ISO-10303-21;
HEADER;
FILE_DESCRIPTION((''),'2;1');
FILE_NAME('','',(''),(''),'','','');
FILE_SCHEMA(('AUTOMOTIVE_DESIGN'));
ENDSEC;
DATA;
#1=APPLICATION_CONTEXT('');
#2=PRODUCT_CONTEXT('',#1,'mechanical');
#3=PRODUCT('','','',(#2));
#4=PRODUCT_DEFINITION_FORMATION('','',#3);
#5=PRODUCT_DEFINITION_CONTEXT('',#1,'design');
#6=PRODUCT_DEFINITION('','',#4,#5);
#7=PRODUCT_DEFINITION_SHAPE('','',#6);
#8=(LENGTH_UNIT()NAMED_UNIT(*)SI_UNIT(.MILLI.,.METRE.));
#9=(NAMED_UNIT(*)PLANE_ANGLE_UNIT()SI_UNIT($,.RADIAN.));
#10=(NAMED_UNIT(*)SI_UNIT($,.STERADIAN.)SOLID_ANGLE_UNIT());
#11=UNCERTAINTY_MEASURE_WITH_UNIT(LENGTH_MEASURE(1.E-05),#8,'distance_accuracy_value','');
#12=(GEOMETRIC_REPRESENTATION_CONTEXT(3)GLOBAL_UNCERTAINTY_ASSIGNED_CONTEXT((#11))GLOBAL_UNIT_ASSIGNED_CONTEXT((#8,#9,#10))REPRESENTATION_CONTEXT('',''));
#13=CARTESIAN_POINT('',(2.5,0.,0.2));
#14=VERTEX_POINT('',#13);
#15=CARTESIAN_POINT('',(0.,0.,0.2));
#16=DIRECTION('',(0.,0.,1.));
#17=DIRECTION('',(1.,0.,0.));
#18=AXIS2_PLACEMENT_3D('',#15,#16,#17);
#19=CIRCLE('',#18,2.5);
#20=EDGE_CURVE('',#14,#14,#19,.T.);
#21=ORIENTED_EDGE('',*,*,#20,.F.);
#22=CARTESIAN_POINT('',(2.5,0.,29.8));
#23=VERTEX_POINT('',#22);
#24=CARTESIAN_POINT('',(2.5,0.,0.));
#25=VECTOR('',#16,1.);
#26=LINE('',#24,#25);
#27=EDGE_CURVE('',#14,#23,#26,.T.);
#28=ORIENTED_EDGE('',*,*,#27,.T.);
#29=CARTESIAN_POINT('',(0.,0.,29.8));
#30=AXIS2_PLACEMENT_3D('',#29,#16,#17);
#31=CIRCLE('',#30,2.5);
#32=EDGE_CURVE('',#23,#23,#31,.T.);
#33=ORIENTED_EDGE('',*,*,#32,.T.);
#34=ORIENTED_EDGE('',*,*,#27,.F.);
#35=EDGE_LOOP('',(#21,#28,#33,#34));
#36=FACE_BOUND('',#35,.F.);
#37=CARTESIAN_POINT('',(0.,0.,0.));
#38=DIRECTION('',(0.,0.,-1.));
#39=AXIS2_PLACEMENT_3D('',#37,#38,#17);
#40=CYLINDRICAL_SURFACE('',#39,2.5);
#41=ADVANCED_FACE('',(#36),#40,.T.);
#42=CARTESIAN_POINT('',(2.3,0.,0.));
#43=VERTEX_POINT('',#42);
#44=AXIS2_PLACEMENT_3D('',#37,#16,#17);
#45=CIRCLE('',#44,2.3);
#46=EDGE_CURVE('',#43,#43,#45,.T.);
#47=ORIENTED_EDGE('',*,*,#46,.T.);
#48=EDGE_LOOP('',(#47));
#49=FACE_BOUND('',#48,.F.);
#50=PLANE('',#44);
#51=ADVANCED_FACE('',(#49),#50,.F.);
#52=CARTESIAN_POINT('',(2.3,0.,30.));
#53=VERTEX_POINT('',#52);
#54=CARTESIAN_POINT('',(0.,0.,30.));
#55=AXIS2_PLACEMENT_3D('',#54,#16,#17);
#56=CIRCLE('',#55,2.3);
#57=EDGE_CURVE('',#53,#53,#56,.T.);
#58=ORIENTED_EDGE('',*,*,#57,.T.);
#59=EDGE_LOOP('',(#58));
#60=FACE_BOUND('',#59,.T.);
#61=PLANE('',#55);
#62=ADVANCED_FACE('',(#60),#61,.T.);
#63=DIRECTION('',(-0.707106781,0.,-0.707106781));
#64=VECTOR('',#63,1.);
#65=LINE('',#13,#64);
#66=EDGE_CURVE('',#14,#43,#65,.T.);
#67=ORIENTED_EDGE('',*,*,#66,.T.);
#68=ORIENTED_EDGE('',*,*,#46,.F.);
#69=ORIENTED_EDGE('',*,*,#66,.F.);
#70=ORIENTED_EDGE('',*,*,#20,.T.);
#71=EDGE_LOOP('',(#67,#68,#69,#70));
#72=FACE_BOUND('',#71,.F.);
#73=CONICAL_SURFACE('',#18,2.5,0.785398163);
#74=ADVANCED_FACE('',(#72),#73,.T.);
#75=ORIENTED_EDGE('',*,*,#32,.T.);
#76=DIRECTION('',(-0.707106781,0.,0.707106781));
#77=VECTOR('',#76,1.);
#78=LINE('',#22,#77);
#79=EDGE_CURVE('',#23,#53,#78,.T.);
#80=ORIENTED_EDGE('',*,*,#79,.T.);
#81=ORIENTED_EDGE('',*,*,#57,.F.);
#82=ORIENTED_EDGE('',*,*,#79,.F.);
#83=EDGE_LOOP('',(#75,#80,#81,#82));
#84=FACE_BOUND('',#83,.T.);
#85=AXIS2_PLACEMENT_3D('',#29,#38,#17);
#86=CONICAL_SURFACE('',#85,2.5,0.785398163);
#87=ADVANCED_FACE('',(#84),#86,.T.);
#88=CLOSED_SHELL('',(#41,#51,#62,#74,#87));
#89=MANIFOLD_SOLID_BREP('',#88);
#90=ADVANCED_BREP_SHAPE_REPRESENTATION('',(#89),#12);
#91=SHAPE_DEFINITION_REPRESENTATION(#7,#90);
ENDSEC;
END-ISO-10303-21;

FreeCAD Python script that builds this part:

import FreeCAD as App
import Part
import Sketcher
Q = App.Units.Quantity


def edges_at(feature, points):
    """Names of the edges that pass closest to the given points."""
    edges = feature.Shape.Edges
    near = lambda p: min(range(len(edges)), key=lambda i: edges[i].distToShape(Part.Vertex(*p))[0])
    return sorted({f"Edge{near(p) + 1}" for p in points})

doc = App.newDocument("Part")
params = doc.addObject("Spreadsheet::Sheet", "Params")
for row, (alias, value) in enumerate([
    ("sketch1_diameter", "5 mm"),
    ("pad1_length", "30 mm"),
    ("chamfer_size", "0.2 mm"),
], start=1):
    params.set(f"A{row}", alias)
    params.set(f"B{row}", "=" + value)
    params.setAlias(f"B{row}", alias)

body = doc.addObject("PartDesign::Body", "Body")

# Sketch on XY plane
sketch1 = body.newObject("Sketcher::SketchObject", "Sketch")
sketch1.AttachmentSupport = (doc.getObject("XY_Plane"), [""])
sketch1.MapMode = "FlatFace"
sketch1.addGeometry(Part.Circle(App.Vector(0, 0, 0), App.Vector(0, 0, 1), 2.5), False)
sketch1.addConstraint([
    Sketcher.Constraint("Coincident", 0, 3, -1, 1),
    Sketcher.Constraint("Diameter", 0, Q("5 mm")),
])
sketch1.setExpression("Constraints[1]", "Params.sketch1_diameter")
pad1 = body.newObject("PartDesign::Pad", "Pad")
pad1.Profile = sketch1
pad1.setExpression("Length", "Params.pad1_length")
doc.recompute()

chamfer = body.newObject("PartDesign::Chamfer", "Chamfer")
chamfer.Base = (pad1, edges_at(pad1, [(-2.5, 0, 0), (-2.5, 0, 30)]))
chamfer.setExpression("Size", "Params.chamfer_size")

doc.recompute()
